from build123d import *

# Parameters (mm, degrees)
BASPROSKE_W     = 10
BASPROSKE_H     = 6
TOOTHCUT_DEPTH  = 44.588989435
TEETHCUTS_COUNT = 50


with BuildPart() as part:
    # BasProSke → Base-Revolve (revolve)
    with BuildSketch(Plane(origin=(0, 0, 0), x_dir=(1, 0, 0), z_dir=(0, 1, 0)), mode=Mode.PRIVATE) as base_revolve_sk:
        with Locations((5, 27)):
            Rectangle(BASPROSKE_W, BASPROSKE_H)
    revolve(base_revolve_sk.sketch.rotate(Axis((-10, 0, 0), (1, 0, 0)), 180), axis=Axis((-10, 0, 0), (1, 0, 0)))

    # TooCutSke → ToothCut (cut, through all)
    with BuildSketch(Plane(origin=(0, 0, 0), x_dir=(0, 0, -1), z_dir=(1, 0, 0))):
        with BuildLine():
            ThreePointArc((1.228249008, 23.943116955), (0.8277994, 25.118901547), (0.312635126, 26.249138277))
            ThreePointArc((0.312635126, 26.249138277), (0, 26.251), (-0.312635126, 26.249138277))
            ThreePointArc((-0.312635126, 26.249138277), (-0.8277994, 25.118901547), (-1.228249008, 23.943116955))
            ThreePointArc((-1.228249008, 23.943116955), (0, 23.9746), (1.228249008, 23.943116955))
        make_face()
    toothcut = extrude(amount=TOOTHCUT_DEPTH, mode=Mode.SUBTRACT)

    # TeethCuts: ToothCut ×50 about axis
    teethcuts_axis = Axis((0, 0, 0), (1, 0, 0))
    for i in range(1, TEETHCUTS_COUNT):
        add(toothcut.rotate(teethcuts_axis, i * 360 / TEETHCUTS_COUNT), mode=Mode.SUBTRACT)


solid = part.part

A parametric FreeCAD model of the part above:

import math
import FreeCAD as App
import Part
import Sketcher

V = App.Vector


def add_polygon(sketch, points):
    """Adds a closed chain of lines whose ends are joined by coincident constraints."""
    first, n = sketch.GeometryCount, len(points)
    for a, b in zip(points, points[1:] + points[:1]):
        sketch.addGeometry(Part.LineSegment(App.Vector(*a, 0), App.Vector(*b, 0)), False)
    for i in range(n):
        sketch.addConstraint(Sketcher.Constraint("Coincident", first + i, 2, first + (i + 1) % n, 1))

doc = App.newDocument("Part")
body = doc.addObject("PartDesign::Body", "Body")

sketch1 = body.newObject("Sketcher::SketchObject", "Sketch")
sketch1.AttachmentSupport = (doc.getObject("XZ_Plane"), [""])
sketch1.MapMode = "FlatFace"
add_polygon(sketch1, [(0, -30), (0, -24), (10, -24), (10, -30)])
sketch1.addConstraint([
    Sketcher.Constraint("Vertical", 0),
    Sketcher.Constraint("Horizontal", 1),
    Sketcher.Constraint("Vertical", 2),
    Sketcher.Constraint("Horizontal", 3),
    Sketcher.Constraint("PointOnObject", 0, 2, -2),
    Sketcher.Constraint("DistanceX", 1, 1, 1, 2, 10.0),
    Sketcher.Constraint("DistanceY", 0, 1, 0, 2, 6.0),
    Sketcher.Constraint("DistanceY", 0, 2, -1, 1, 24.0),
])
revolution = body.newObject("PartDesign::Revolution", "Revolution")
revolution.Profile = sketch1
revolution.ReferenceAxis = (sketch1, ["H_Axis"])
revolution.Angle = 360

sketch2 = body.newObject("Sketcher::SketchObject", "Sketch001")
sketch2.AttachmentSupport = (doc.getObject("YZ_Plane"), [""])
sketch2.MapMode = "FlatFace"
sketch2.addGeometry([
    Part.ArcOfCircle(Part.Circle(V(20.506043, 10.789926, 0), V(0, 0, 1), 12.5), math.radians(-74.040017), math.radians(-62.64853)),
    Part.ArcOfCircle(Part.Circle(V(-0.000002, 0, 0), V(0, 0, 1), 26.251002), math.radians(-0.682378), math.radians(0.682378)),
    Part.ArcOfCircle(Part.Circle(V(20.506043, -10.789926, 0), V(0, 0, 1), 12.5), math.radians(62.64853), math.radians(74.040017)),
    Part.ArcOfCircle(Part.Circle(V(0, 0, 0), V(0, 0, 1), 23.9746), math.radians(-2.936621), math.radians(2.936621)),
], False)
sketch2.addConstraint([
    Sketcher.Constraint("Coincident", 0, 2, 1, 1),
    Sketcher.Constraint("Coincident", 1, 2, 2, 1),
    Sketcher.Constraint("Coincident", 2, 2, 3, 2),
    Sketcher.Constraint("Coincident", 3, 1, 0, 1),
    Sketcher.Constraint("Coincident", 1, 3, -1, 1),
    Sketcher.Constraint("Coincident", 3, 3, -1, 1),
    Sketcher.Constraint("Equal", 0, 2),
    Sketcher.Constraint("Symmetric", 0, 3, 2, 3, -1),
    Sketcher.Constraint("Radius", 0, 12.5),
    Sketcher.Constraint("Radius", 1, 26.251002),
    Sketcher.Constraint("Radius", 3, 23.9746),
    Sketcher.Constraint("DistanceY", 3, 1, 2, 2, 2.456498),
    Sketcher.Constraint("DistanceY", 2, 3, 0, 3, 21.579851),
])
pocket1 = body.newObject("PartDesign::Pocket", "Pocket")
pocket1.Profile = sketch2
pocket1.Type = "ThroughAll"
pocket1.Reversed = True
doc.recompute()

polarpattern = body.newObject("PartDesign::PolarPattern", "PolarPattern")
polarpattern.Originals = [pocket1]
polarpattern.Axis = (doc.getObject("X_Axis"), [""])
polarpattern.Angle = 360
polarpattern.Occurrences = 50
body.Tip = polarpattern

doc.recompute()
